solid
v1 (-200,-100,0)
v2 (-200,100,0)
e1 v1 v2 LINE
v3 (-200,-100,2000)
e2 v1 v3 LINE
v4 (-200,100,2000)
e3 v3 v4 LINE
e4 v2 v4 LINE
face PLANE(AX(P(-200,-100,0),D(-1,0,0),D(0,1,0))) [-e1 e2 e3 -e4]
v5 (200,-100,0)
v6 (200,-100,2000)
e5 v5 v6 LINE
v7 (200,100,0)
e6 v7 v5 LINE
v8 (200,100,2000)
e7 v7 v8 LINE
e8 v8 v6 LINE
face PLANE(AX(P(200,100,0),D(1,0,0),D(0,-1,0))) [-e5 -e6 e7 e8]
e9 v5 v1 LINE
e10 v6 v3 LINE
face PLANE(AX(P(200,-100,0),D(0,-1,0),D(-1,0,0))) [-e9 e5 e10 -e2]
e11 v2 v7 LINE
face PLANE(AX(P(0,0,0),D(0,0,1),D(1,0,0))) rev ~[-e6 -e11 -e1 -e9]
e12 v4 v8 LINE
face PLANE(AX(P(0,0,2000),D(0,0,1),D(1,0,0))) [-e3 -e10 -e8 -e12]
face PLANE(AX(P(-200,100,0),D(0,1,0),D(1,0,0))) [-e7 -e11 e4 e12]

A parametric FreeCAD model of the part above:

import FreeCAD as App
import Part
import Sketcher

V = App.Vector
Q = App.Units.Quantity


def add_polygon(sketch, points):
    """Adds a closed chain of lines whose ends are joined by coincident constraints."""
    first, n = sketch.GeometryCount, len(points)
    for a, b in zip(points, points[1:] + points[:1]):
        sketch.addGeometry(Part.LineSegment(App.Vector(*a, 0), App.Vector(*b, 0)), False)
    for i in range(n):
        sketch.addConstraint(Sketcher.Constraint("Coincident", first + i, 2, first + (i + 1) % n, 1))

doc = App.newDocument("Part")
body = doc.addObject("PartDesign::Body", "Body")

# Sketch on XY plane
sketch1 = body.newObject("Sketcher::SketchObject", "Sketch")
sketch1.AttachmentSupport = (doc.getObject("XY_Plane"), [""])
sketch1.MapMode = "FlatFace"
add_polygon(sketch1, [(200, 100), (-200, 100), (-200, -100), (200, -100)])  # lines 0-3
sketch1.addConstraint(Sketcher.Constraint("Horizontal", 0))
sketch1.addConstraint(Sketcher.Constraint("Vertical", 1))
sketch1.addConstraint(Sketcher.Constraint("Horizontal", 2))
sketch1.addConstraint(Sketcher.Constraint("Vertical", 3))
sketch1.addConstraint(Sketcher.Constraint("Symmetric", 0, 2, 2, 2, -1, 1))
sketch1.addConstraint(Sketcher.Constraint("DistanceX", 0, 2, 0, 1, Q("400 mm")))
sketch1.addConstraint(Sketcher.Constraint("DistanceY", 1, 2, 1, 1, Q("200 mm")))
pad1 = body.newObject("PartDesign::Pad", "Pad")
pad1.Profile = sketch1
pad1.Length = 2000

doc.recompute()
